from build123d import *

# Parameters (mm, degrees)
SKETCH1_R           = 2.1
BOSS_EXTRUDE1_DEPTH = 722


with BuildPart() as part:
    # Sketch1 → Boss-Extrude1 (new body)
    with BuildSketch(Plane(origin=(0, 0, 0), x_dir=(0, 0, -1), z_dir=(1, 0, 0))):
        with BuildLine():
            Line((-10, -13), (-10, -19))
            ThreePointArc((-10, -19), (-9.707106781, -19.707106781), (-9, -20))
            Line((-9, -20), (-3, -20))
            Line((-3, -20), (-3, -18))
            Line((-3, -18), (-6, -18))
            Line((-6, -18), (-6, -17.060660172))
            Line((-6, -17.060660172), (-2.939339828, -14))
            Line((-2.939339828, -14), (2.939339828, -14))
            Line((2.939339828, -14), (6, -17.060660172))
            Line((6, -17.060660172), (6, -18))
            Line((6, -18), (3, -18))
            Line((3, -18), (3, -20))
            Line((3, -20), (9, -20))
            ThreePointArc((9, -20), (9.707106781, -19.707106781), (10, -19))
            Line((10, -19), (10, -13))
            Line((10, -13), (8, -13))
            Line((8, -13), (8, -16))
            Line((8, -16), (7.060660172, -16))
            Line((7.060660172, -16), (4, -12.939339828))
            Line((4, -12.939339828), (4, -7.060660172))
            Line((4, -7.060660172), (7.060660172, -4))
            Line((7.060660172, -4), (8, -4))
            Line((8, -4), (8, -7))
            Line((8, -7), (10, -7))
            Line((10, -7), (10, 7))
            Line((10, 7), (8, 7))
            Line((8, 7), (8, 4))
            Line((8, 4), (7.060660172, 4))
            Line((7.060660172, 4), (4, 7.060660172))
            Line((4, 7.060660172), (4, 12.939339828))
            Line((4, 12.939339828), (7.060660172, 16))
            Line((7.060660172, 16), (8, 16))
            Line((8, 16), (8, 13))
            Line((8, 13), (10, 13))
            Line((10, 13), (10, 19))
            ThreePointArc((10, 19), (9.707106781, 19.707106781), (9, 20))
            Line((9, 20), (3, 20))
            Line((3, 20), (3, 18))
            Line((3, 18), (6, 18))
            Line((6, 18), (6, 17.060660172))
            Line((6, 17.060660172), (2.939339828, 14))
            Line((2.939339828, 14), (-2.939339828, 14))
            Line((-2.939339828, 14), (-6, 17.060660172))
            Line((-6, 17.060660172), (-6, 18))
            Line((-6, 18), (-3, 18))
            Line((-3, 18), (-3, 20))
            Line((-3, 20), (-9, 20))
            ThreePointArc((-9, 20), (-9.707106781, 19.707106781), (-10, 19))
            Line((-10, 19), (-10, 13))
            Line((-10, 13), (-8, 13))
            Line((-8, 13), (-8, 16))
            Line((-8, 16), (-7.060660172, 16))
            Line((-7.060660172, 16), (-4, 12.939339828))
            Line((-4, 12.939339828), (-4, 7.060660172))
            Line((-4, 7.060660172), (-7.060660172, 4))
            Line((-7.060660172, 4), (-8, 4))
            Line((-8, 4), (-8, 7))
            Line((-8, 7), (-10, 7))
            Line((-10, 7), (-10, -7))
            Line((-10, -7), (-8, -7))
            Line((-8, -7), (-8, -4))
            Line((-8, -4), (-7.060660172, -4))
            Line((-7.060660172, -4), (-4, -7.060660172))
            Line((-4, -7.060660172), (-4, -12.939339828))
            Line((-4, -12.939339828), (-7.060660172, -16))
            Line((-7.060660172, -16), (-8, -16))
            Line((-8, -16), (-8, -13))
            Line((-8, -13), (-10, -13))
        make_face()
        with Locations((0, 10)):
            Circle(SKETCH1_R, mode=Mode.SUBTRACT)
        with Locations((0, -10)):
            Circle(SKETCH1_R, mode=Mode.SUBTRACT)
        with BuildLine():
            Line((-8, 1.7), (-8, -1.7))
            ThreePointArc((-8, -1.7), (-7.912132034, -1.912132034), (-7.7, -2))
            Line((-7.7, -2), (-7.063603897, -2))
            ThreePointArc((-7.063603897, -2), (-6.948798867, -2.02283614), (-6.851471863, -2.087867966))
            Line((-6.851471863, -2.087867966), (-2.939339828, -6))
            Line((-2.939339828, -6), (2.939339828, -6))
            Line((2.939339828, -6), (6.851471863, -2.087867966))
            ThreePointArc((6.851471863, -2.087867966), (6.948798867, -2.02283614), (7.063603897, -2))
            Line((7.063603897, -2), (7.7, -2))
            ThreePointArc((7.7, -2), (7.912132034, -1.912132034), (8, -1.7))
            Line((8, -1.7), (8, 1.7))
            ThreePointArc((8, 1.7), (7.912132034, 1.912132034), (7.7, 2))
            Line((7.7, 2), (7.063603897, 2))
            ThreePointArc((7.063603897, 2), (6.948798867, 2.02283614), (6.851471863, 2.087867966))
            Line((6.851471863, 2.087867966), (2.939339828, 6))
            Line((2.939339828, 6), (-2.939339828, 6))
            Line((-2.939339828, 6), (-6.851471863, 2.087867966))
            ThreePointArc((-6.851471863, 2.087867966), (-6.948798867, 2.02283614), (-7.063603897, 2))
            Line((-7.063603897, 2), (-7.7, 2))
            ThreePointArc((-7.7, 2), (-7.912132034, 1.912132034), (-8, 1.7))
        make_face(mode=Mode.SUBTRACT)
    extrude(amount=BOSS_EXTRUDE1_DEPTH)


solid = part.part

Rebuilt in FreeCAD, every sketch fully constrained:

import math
import FreeCAD as App
import Part
import Sketcher

V = App.Vector
Q = App.Units.Quantity

doc = App.newDocument("Part")
body = doc.addObject("PartDesign::Body", "Body")

# Sketch on YZ plane
sketch1 = doc.addObject("Sketcher::SketchObject", "Sketch")
body.addObject(sketch1)
sketch1.AttachmentSupport = (doc.YZ_Plane, [""])
sketch1.MapMode = "FlatFace"
sketch1.addGeometry([
    Part.LineSegment(V(-13, 10, 0), V(-19, 10, 0)),  # 0
    Part.ArcOfCircle(Part.Circle(V(-19, 9, 0), V(0, 0, 1), 1), math.radians(90), math.radians(180)),  # 1
    Part.LineSegment(V(-20, 9, 0), V(-20, 3, 0)),  # 2
    Part.LineSegment(V(-20, 3, 0), V(-18, 3, 0)),  # 3
    Part.LineSegment(V(-18, 3, 0), V(-18, 6, 0)),  # 4
    Part.LineSegment(V(-18, 6, 0), V(-17.06, 6, 0)),  # 5
    Part.LineSegment(V(-17.06, 6, 0), V(-14, 2.94, 0)),  # 6
    Part.LineSegment(V(-14, 2.94, 0), V(-14, -2.94, 0)),  # 7
    Part.LineSegment(V(-14, -2.94, 0), V(-17.06, -6, 0)),  # 8
    Part.LineSegment(V(-17.06, -6, 0), V(-18, -6, 0)),  # 9
    Part.LineSegment(V(-18, -6, 0), V(-18, -3, 0)),  # 10
    Part.LineSegment(V(-18, -3, 0), V(-20, -3, 0)),  # 11
    Part.LineSegment(V(-20, -3, 0), V(-20, -9, 0)),  # 12
    Part.ArcOfCircle(Part.Circle(V(-19, -9, 0), V(0, 0, 1), 1), math.radians(-180), math.radians(-90)),  # 13
    Part.LineSegment(V(-19, -10, 0), V(-13, -10, 0)),  # 14
    Part.LineSegment(V(-13, -10, 0), V(-13, -8, 0)),  # 15
    Part.LineSegment(V(-13, -8, 0), V(-16, -8, 0)),  # 16
    Part.LineSegment(V(-16, -8, 0), V(-16, -7.06, 0)),  # 17
    Part.LineSegment(V(-16, -7.06, 0), V(-12.94, -4, 0)),  # 18
    Part.LineSegment(V(-12.94, -4, 0), V(-7.06, -4, 0)),  # 19
    Part.LineSegment(V(-7.06, -4, 0), V(-4, -7.06, 0)),  # 20
    Part.LineSegment(V(-4, -7.06, 0), V(-4, -8, 0)),  # 21
    Part.LineSegment(V(-4, -8, 0), V(-7, -8, 0)),  # 22
    Part.LineSegment(V(-7, -8, 0), V(-7, -10, 0)),  # 23
    Part.LineSegment(V(-7, -10, 0), V(7, -10, 0)),  # 24
    Part.LineSegment(V(7, -10, 0), V(7, -8, 0)),  # 25
    Part.LineSegment(V(7, -8, 0), V(4, -8, 0)),  # 26
    Part.LineSegment(V(4, -8, 0), V(4, -7.06, 0)),  # 27
    Part.LineSegment(V(4, -7.06, 0), V(7.06, -4, 0)),  # 28
    Part.LineSegment(V(7.06, -4, 0), V(12.94, -4, 0)),  # 29
    Part.LineSegment(V(12.94, -4, 0), V(16, -7.06, 0)),  # 30
    Part.LineSegment(V(16, -7.06, 0), V(16, -8, 0)),  # 31
    Part.LineSegment(V(16, -8, 0), V(13, -8, 0)),  # 32
    Part.LineSegment(V(13, -8, 0), V(13, -10, 0)),  # 33
    Part.LineSegment(V(13, -10, 0), V(19, -10, 0)),  # 34
    Part.ArcOfCircle(Part.Circle(V(19, -9, 0), V(0, 0, 1), 1), math.radians(-90), math.radians(0)),  # 35
    Part.LineSegment(V(20, -9, 0), V(20, -3, 0)),  # 36
    Part.LineSegment(V(20, -3, 0), V(18, -3, 0)),  # 37
    Part.LineSegment(V(18, -3, 0), V(18, -6, 0)),  # 38
    Part.LineSegment(V(18, -6, 0), V(17.06, -6, 0)),  # 39
    Part.LineSegment(V(17.06, -6, 0), V(14, -2.94, 0)),  # 40
    Part.LineSegment(V(14, -2.94, 0), V(14, 2.94, 0)),  # 41
    Part.LineSegment(V(14, 2.94, 0), V(17.06, 6, 0)),  # 42
    Part.LineSegment(V(17.06, 6, 0), V(18, 6, 0)),  # 43
    Part.LineSegment(V(18, 6, 0), V(18, 3, 0)),  # 44
    Part.LineSegment(V(18, 3, 0), V(20, 3, 0)),  # 45
    Part.LineSegment(V(20, 3, 0), V(20, 9, 0)),  # 46
    Part.ArcOfCircle(Part.Circle(V(19, 9, 0), V(0, 0, 1), 1), math.radians(0), math.radians(90)),  # 47
    Part.LineSegment(V(19, 10, 0), V(13, 10, 0)),  # 48
    Part.LineSegment(V(13, 10, 0), V(13, 8, 0)),  # 49
    Part.LineSegment(V(13, 8, 0), V(16, 8, 0)),  # 50
    Part.LineSegment(V(16, 8, 0), V(16, 7.06, 0)),  # 51
    Part.LineSegment(V(16, 7.06, 0), V(12.94, 4, 0)),  # 52
    Part.LineSegment(V(12.94, 4, 0), V(7.06, 4, 0)),  # 53
    Part.LineSegment(V(7.06, 4, 0), V(4, 7.06, 0)),  # 54
    Part.LineSegment(V(4, 7.06, 0), V(4, 8, 0)),  # 55
    Part.LineSegment(V(4, 8, 0), V(7, 8, 0)),  # 56
    Part.LineSegment(V(7, 8, 0), V(7, 10, 0)),  # 57
    Part.LineSegment(V(7, 10, 0), V(-7, 10, 0)),  # 58
    Part.LineSegment(V(-7, 10, 0), V(-7, 8, 0)),  # 59
    Part.LineSegment(V(-7, 8, 0), V(-4, 8, 0)),  # 60
    Part.LineSegment(V(-4, 8, 0), V(-4, 7.06, 0)),  # 61
    Part.LineSegment(V(-4, 7.06, 0), V(-7.06, 4, 0)),  # 62
    Part.LineSegment(V(-7.06, 4, 0), V(-12.94, 4, 0)),  # 63
    Part.LineSegment(V(-12.94, 4, 0), V(-16, 7.06, 0)),  # 64
    Part.LineSegment(V(-16, 7.06, 0), V(-16, 8, 0)),  # 65
    Part.LineSegment(V(-16, 8, 0), V(-13, 8, 0)),  # 66
    Part.LineSegment(V(-13, 8, 0), V(-13, 10, 0)),  # 67
    Part.Circle(V(-10, 0, 0), V(0, 0, 1), 2.1),  # 68
    Part.LineSegment(V(-1.7, 8, 0), V(1.7, 8, 0)),  # 69
    Part.ArcOfCircle(Part.Circle(V(1.7, 7.7, 0), V(0, 0, 1), 0.3), math.radians(0), math.radians(90)),  # 70
    Part.LineSegment(V(2, 7.7, 0), V(2, 7.06, 0)),  # 71
    Part.ArcOfCircle(Part.Circle(V(2.3, 7.06, 0), V(0, 0, 1), 0.3), math.radians(180), math.radians(225)),  # 72
    Part.LineSegment(V(2.09, 6.85, 0), V(6, 2.94, 0)),  # 73
    Part.LineSegment(V(6, 2.94, 0), V(6, -2.94, 0)),  # 74
    Part.LineSegment(V(6, -2.94, 0), V(2.09, -6.85, 0)),  # 75
    Part.ArcOfCircle(Part.Circle(V(2.3, -7.06, 0), V(0, 0, 1), 0.3), math.radians(135), math.radians(180)),  # 76
    Part.LineSegment(V(2, -7.06, 0), V(2, -7.7, 0)),  # 77
    Part.ArcOfCircle(Part.Circle(V(1.7, -7.7, 0), V(0, 0, 1), 0.3), math.radians(-90), math.radians(0)),  # 78
    Part.LineSegment(V(1.7, -8, 0), V(-1.7, -8, 0)),  # 79
    Part.ArcOfCircle(Part.Circle(V(-1.7, -7.7, 0), V(0, 0, 1), 0.3), math.radians(-180), math.radians(-90)),  # 80
    Part.LineSegment(V(-2, -7.7, 0), V(-2, -7.06, 0)),  # 81
    Part.ArcOfCircle(Part.Circle(V(-2.3, -7.06, 0), V(0, 0, 1), 0.3), math.radians(0), math.radians(45)),  # 82
    Part.LineSegment(V(-2.09, -6.85, 0), V(-6, -2.94, 0)),  # 83
    Part.LineSegment(V(-6, -2.94, 0), V(-6, 2.94, 0)),  # 84
    Part.LineSegment(V(-6, 2.94, 0), V(-2.09, 6.85, 0)),  # 85
    Part.ArcOfCircle(Part.Circle(V(-2.3, 7.06, 0), V(0, 0, 1), 0.3), math.radians(-45), math.radians(0)),  # 86
    Part.LineSegment(V(-2, 7.06, 0), V(-2, 7.7, 0)),  # 87
    Part.ArcOfCircle(Part.Circle(V(-1.7, 7.7, 0), V(0, 0, 1), 0.3), math.radians(90), math.radians(180)),  # 88
    Part.Circle(V(10, 0, 0), V(0, 0, 1), 2.1),  # 89
], False)
sketch1.addConstraint([
    Sketcher.Constraint("Tangent", 0, 2, 1, 1),
    Sketcher.Constraint("Tangent", 1, 2, 2, 1),
    Sketcher.Constraint("Coincident", 2, 2, 3, 1),
    Sketcher.Constraint("Coincident", 3, 2, 4, 1),
    Sketcher.Constraint("Coincident", 4, 2, 5, 1),
    Sketcher.Constraint("Coincident", 5, 2, 6, 1),
    Sketcher.Constraint("Coincident", 6, 2, 7, 1),
    Sketcher.Constraint("Coincident", 7, 2, 8, 1),
    Sketcher.Constraint("Coincident", 8, 2, 9, 1),
    Sketcher.Constraint("Coincident", 9, 2, 10, 1),
    Sketcher.Constraint("Coincident", 10, 2, 11, 1),
    Sketcher.Constraint("Coincident", 11, 2, 12, 1),
    Sketcher.Constraint("Tangent", 12, 2, 13, 1),
    Sketcher.Constraint("Tangent", 13, 2, 14, 1),
    Sketcher.Constraint("Coincident", 14, 2, 15, 1),
    Sketcher.Constraint("Coincident", 15, 2, 16, 1),
    Sketcher.Constraint("Coincident", 16, 2, 17, 1),
    Sketcher.Constraint("Coincident", 17, 2, 18, 1),
    Sketcher.Constraint("Coincident", 18, 2, 19, 1),
    Sketcher.Constraint("Coincident", 19, 2, 20, 1),
    Sketcher.Constraint("Coincident", 20, 2, 21, 1),
    Sketcher.Constraint("Coincident", 21, 2, 22, 1),
    Sketcher.Constraint("Coincident", 22, 2, 23, 1),
    Sketcher.Constraint("Coincident", 23, 2, 24, 1),
    Sketcher.Constraint("Coincident", 24, 2, 25, 1),
    Sketcher.Constraint("Coincident", 25, 2, 26, 1),
    Sketcher.Constraint("Coincident", 26, 2, 27, 1),
    Sketcher.Constraint("Coincident", 27, 2, 28, 1),
    Sketcher.Constraint("Coincident", 28, 2, 29, 1),
    Sketcher.Constraint("Coincident", 29, 2, 30, 1),
    Sketcher.Constraint("Coincident", 30, 2, 31, 1),
    Sketcher.Constraint("Coincident", 31, 2, 32, 1),
    Sketcher.Constraint("Coincident", 32, 2, 33, 1),
    Sketcher.Constraint("Coincident", 33, 2, 34, 1),
    Sketcher.Constraint("Tangent", 34, 2, 35, 1),
    Sketcher.Constraint("Tangent", 35, 2, 36, 1),
    Sketcher.Constraint("Coincident", 36, 2, 37, 1),
    Sketcher.Constraint("Coincident", 37, 2, 38, 1),
    Sketcher.Constraint("Coincident", 38, 2, 39, 1),
    Sketcher.Constraint("Coincident", 39, 2, 40, 1),
    Sketcher.Constraint("Coincident", 40, 2, 41, 1),
    Sketcher.Constraint("Coincident", 41, 2, 42, 1),
    Sketcher.Constraint("Coincident", 42, 2, 43, 1),
    Sketcher.Constraint("Coincident", 43, 2, 44, 1),
    Sketcher.Constraint("Coincident", 44, 2, 45, 1),
    Sketcher.Constraint("Coincident", 45, 2, 46, 1),
    Sketcher.Constraint("Tangent", 46, 2, 47, 1),
    Sketcher.Constraint("Tangent", 47, 2, 48, 1),
    Sketcher.Constraint("Coincident", 48, 2, 49, 1),
    Sketcher.Constraint("Coincident", 49, 2, 50, 1),
    Sketcher.Constraint("Coincident", 50, 2, 51, 1),
    Sketcher.Constraint("Coincident", 51, 2, 52, 1),
    Sketcher.Constraint("Coincident", 52, 2, 53, 1),
    Sketcher.Constraint("Coincident", 53, 2, 54, 1),
    Sketcher.Constraint("Coincident", 54, 2, 55, 1),
    Sketcher.Constraint("Coincident", 55, 2, 56, 1),
    Sketcher.Constraint("Coincident", 56, 2, 57, 1),
    Sketcher.Constraint("Coincident", 57, 2, 58, 1),
    Sketcher.Constraint("Coincident", 58, 2, 59, 1),
    Sketcher.Constraint("Coincident", 59, 2, 60, 1),
    Sketcher.Constraint("Coincident", 60, 2, 61, 1),
    Sketcher.Constraint("Coincident", 61, 2, 62, 1),
    Sketcher.Constraint("Coincident", 62, 2, 63, 1),
    Sketcher.Constraint("Coincident", 63, 2, 64, 1),
    Sketcher.Constraint("Coincident", 64, 2, 65, 1),
    Sketcher.Constraint("Coincident", 65, 2, 66, 1),
    Sketcher.Constraint("Coincident", 66, 2, 67, 1),
    Sketcher.Constraint("Coincident", 67, 2, 0, 1),
    Sketcher.Constraint("Tangent", 69, 2, 70, 2),
    Sketcher.Constraint("Tangent", 70, 1, 71, 1),
    Sketcher.Constraint("Tangent", 71, 2, 72, 1),
    Sketcher.Constraint("Tangent", 72, 2, 73, 1),
    Sketcher.Constraint("Coincident", 73, 2, 74, 1),
    Sketcher.Constraint("Coincident", 74, 2, 75, 1),
    Sketcher.Constraint("Tangent", 75, 2, 76, 1),
    Sketcher.Constraint("Tangent", 76, 2, 77, 1),
    Sketcher.Constraint("Tangent", 77, 2, 78, 2),
    Sketcher.Constraint("Tangent", 78, 1, 79, 1),
    Sketcher.Constraint("Tangent", 79, 2, 80, 2),
    Sketcher.Constraint("Tangent", 80, 1, 81, 1),
    Sketcher.Constraint("Tangent", 81, 2, 82, 1),
    Sketcher.Constraint("Tangent", 82, 2, 83, 1),
    Sketcher.Constraint("Coincident", 83, 2, 84, 1),
    Sketcher.Constraint("Coincident", 84, 2, 85, 1),
    Sketcher.Constraint("Tangent", 85, 2, 86, 1),
    Sketcher.Constraint("Tangent", 86, 2, 87, 1),
    Sketcher.Constraint("Tangent", 87, 2, 88, 2),
    Sketcher.Constraint("Tangent", 88, 1, 69, 1),
    Sketcher.Constraint("Horizontal", 0),
    Sketcher.Constraint("Vertical", 2),
    Sketcher.Constraint("Horizontal", 3),
    Sketcher.Constraint("Vertical", 4),
    Sketcher.Constraint("Horizontal", 5),
    Sketcher.Constraint("Vertical", 7),
    Sketcher.Constraint("Horizontal", 9),
    Sketcher.Constraint("Vertical", 10),
    Sketcher.Constraint("Horizontal", 11),
    Sketcher.Constraint("Vertical", 12),
    Sketcher.Constraint("Horizontal", 14),
    Sketcher.Constraint("Vertical", 15),
    Sketcher.Constraint("Horizontal", 16),
    Sketcher.Constraint("Vertical", 17),
    Sketcher.Constraint("Horizontal", 19),
    Sketcher.Constraint("Vertical", 21),
    Sketcher.Constraint("Horizontal", 22),
    Sketcher.Constraint("Vertical", 23),
    Sketcher.Constraint("Horizontal", 24),
    Sketcher.Constraint("Vertical", 25),
    Sketcher.Constraint("Horizontal", 26),
    Sketcher.Constraint("Vertical", 27),
    Sketcher.Constraint("Horizontal", 29),
    Sketcher.Constraint("Vertical", 31),
    Sketcher.Constraint("Horizontal", 32),
    Sketcher.Constraint("Vertical", 33),
    Sketcher.Constraint("Horizontal", 34),
    Sketcher.Constraint("Vertical", 36),
    Sketcher.Constraint("Horizontal", 37),
    Sketcher.Constraint("Vertical", 38),
    Sketcher.Constraint("Horizontal", 39),
    Sketcher.Constraint("Vertical", 41),
    Sketcher.Constraint("Horizontal", 43),
    Sketcher.Constraint("Vertical", 44),
    Sketcher.Constraint("Horizontal", 45),
    Sketcher.Constraint("Vertical", 46),
    Sketcher.Constraint("Horizontal", 48),
    Sketcher.Constraint("Vertical", 49),
    Sketcher.Constraint("Horizontal", 50),
    Sketcher.Constraint("Vertical", 51),
    Sketcher.Constraint("Horizontal", 53),
    Sketcher.Constraint("Vertical", 55),
    Sketcher.Constraint("Horizontal", 56),
    Sketcher.Constraint("Vertical", 57),
    Sketcher.Constraint("Horizontal", 58),
    Sketcher.Constraint("Vertical", 59),
    Sketcher.Constraint("Horizontal", 60),
    Sketcher.Constraint("Vertical", 61),
    Sketcher.Constraint("Horizontal", 63),
    Sketcher.Constraint("Vertical", 65),
    Sketcher.Constraint("Horizontal", 66),
    Sketcher.Constraint("Vertical", 67),
    Sketcher.Constraint("Horizontal", 69),
    Sketcher.Constraint("Vertical", 71),
    Sketcher.Constraint("Vertical", 74),
    Sketcher.Constraint("Vertical", 77),
    Sketcher.Constraint("Horizontal", 79),
    Sketcher.Constraint("Vertical", 81),
    Sketcher.Constraint("Vertical", 84),
    Sketcher.Constraint("Vertical", 87),
    Sketcher.Constraint("Equal", 1, 13),
    Sketcher.Constraint("Equal", 13, 35),
    Sketcher.Constraint("Equal", 35, 47),
    Sketcher.Constraint("Equal", 70, 72),
    Sketcher.Constraint("Equal", 72, 76),
    Sketcher.Constraint("Equal", 76, 78),
    Sketcher.Constraint("Equal", 78, 80),
    Sketcher.Constraint("Equal", 80, 82),
    Sketcher.Constraint("Equal", 82, 86),
    Sketcher.Constraint("Equal", 86, 88),
    Sketcher.Constraint("Equal", 68, 89),
    Sketcher.Constraint("Symmetric", 1, 3, 35, 3, -1, 1),
    Sketcher.Constraint("Symmetric", 13, 3, 47, 3, -1, 1),
    Sketcher.Constraint("Symmetric", 70, 3, 80, 3, -1, 1),
    Sketcher.Constraint("Symmetric", 76, 3, 86, 3, -1, 1),
    Sketcher.Constraint("Symmetric", 68, 3, 89, 3, -1, 1),
    Sketcher.Constraint("Symmetric", 3, 2, 37, 2, -1, 1),
    Sketcher.Constraint("Symmetric", 5, 2, 39, 2, -1, 1),
    Sketcher.Constraint("Symmetric", 6, 2, 40, 2, -1, 1),
    Sketcher.Constraint("Symmetric", 8, 2, 42, 2, -1, 1),
    Sketcher.Constraint("Symmetric", 10, 2, 44, 2, -1, 1),
    Sketcher.Constraint("Symmetric", 15, 2, 49, 2, -1, 1),
    Sketcher.Constraint("Symmetric", 17, 2, 51, 2, -1, 1),
    Sketcher.Constraint("Symmetric", 18, 2, 52, 2, -1, 1),
    Sketcher.Constraint("Symmetric", 20, 2, 54, 2, -1, 1),
    Sketcher.Constraint("Symmetric", 22, 2, 56, 2, -1, 1),
    Sketcher.Constraint("Symmetric", 24, 2, 58, 2, -1, 1),
    Sketcher.Constraint("Symmetric", 26, 2, 60, 2, -1, 1),
    Sketcher.Constraint("Symmetric", 28, 2, 62, 2, -1, 1),
    Sketcher.Constraint("Symmetric", 30, 2, 64, 2, -1, 1),
    Sketcher.Constraint("Symmetric", 32, 2, 66, 2, -1, 1),
    Sketcher.Constraint("Symmetric", 72, 2, 82, 2, -1, 1),
    Sketcher.Constraint("Symmetric", 74, 2, 84, 2, -1, 1),
    Sketcher.Constraint("Symmetric", 13, 3, 35, 3, -2),
    Sketcher.Constraint("Symmetric", 76, 3, 82, 3, -2),
    Sketcher.Constraint("Symmetric", 22, 2, 25, 2, -2),
    Sketcher.Constraint("Symmetric", 20, 2, 27, 2, -2),
    Sketcher.Constraint("Symmetric", 19, 2, 28, 2, -2),
    Sketcher.Constraint("Symmetric", 17, 2, 30, 2, -2),
    Sketcher.Constraint("Symmetric", 15, 2, 32, 2, -2),
    Sketcher.Constraint("Symmetric", 10, 2, 37, 2, -2),
    Sketcher.Constraint("Symmetric", 8, 2, 39, 2, -2),
    Sketcher.Constraint("PointOnObject", 68, 3, -1),
    Sketcher.Constraint("Perpendicular", 6, 8),
    Sketcher.Constraint("Parallel", 8, 18),
    Sketcher.Constraint("Perpendicular", 18, 20),
    Sketcher.Constraint("Perpendicular", 20, 28),
    Sketcher.Constraint("Perpendicular", 28, 30),
    Sketcher.Constraint("Perpendicular", 40, 42),
    Sketcher.Constraint("Perpendicular", 52, 54),
    Sketcher.Constraint("Perpendicular", 54, 62),
    Sketcher.Constraint("Perpendicular", 62, 64),
    Sketcher.Constraint("Parallel", 64, 73),
    Sketcher.Constraint("Perpendicular", 73, 75),
    Sketcher.Constraint("Horizontal", 17, 2, 20, 2),
    Sketcher.Constraint("Horizontal", 16, 2, 21, 2),
    Sketcher.Constraint("Horizontal", 14, 2, 23, 2),
    Sketcher.Constraint("Horizontal", 66, 2, 69, 2),
    Sketcher.Constraint("Horizontal", 41, 2, 73, 2),
    Sketcher.Constraint("Equal", 16, 22),
    Sketcher.Constraint("Equal", 48, 2),
    Sketcher.Constraint("Equal", 66, 4),
    Sketcher.Constraint("Equal", 63, 7),
    Sketcher.Constraint("Equal", 45, 15),
    Sketcher.Constraint("Equal", 43, 17),
    Sketcher.Constraint("Equal", 8, 18),
    Sketcher.Constraint("Radius", 1, Q("1 mm")),
    Sketcher.Constraint("Diameter", 68, Q("4.2 mm")),
    Sketcher.Constraint("Radius", 70, Q("0.3 mm")),
    Sketcher.Constraint("DistanceX", 0, 2, 0, 1, Q("6 mm")),
    Sketcher.Constraint("DistanceX", 3, 1, 3, 2, Q("2 mm")),
    Sketcher.Constraint("DistanceX", 16, 2, 16, 1, Q("3 mm")),
    Sketcher.Constraint("DistanceX", 24, 1, 24, 2, Q("14 mm")),
    Sketcher.Constraint("DistanceX", 69, 1, 69, 2, Q("3.4 mm")),
    Sketcher.Constraint("DistanceX", 1, 3, -1, 1, Q("19 mm")),
    Sketcher.Constraint("DistanceX", 68, 3, -1, 1, Q("10 mm")),
    Sketcher.Constraint("DistanceX", 6, 2, -1, 1, Q("14 mm")),
    Sketcher.Constraint("DistanceX", -1, 1, 73, 2, Q("6 mm")),
    Sketcher.Constraint("DistanceX", 5, 1, 5, 2, Q("0.93934 mm")),
])
pad1 = doc.addObject("PartDesign::Pad", "Pad")
body.addObject(pad1)
pad1.Profile = sketch1
pad1.Length = 722

doc.recompute()
